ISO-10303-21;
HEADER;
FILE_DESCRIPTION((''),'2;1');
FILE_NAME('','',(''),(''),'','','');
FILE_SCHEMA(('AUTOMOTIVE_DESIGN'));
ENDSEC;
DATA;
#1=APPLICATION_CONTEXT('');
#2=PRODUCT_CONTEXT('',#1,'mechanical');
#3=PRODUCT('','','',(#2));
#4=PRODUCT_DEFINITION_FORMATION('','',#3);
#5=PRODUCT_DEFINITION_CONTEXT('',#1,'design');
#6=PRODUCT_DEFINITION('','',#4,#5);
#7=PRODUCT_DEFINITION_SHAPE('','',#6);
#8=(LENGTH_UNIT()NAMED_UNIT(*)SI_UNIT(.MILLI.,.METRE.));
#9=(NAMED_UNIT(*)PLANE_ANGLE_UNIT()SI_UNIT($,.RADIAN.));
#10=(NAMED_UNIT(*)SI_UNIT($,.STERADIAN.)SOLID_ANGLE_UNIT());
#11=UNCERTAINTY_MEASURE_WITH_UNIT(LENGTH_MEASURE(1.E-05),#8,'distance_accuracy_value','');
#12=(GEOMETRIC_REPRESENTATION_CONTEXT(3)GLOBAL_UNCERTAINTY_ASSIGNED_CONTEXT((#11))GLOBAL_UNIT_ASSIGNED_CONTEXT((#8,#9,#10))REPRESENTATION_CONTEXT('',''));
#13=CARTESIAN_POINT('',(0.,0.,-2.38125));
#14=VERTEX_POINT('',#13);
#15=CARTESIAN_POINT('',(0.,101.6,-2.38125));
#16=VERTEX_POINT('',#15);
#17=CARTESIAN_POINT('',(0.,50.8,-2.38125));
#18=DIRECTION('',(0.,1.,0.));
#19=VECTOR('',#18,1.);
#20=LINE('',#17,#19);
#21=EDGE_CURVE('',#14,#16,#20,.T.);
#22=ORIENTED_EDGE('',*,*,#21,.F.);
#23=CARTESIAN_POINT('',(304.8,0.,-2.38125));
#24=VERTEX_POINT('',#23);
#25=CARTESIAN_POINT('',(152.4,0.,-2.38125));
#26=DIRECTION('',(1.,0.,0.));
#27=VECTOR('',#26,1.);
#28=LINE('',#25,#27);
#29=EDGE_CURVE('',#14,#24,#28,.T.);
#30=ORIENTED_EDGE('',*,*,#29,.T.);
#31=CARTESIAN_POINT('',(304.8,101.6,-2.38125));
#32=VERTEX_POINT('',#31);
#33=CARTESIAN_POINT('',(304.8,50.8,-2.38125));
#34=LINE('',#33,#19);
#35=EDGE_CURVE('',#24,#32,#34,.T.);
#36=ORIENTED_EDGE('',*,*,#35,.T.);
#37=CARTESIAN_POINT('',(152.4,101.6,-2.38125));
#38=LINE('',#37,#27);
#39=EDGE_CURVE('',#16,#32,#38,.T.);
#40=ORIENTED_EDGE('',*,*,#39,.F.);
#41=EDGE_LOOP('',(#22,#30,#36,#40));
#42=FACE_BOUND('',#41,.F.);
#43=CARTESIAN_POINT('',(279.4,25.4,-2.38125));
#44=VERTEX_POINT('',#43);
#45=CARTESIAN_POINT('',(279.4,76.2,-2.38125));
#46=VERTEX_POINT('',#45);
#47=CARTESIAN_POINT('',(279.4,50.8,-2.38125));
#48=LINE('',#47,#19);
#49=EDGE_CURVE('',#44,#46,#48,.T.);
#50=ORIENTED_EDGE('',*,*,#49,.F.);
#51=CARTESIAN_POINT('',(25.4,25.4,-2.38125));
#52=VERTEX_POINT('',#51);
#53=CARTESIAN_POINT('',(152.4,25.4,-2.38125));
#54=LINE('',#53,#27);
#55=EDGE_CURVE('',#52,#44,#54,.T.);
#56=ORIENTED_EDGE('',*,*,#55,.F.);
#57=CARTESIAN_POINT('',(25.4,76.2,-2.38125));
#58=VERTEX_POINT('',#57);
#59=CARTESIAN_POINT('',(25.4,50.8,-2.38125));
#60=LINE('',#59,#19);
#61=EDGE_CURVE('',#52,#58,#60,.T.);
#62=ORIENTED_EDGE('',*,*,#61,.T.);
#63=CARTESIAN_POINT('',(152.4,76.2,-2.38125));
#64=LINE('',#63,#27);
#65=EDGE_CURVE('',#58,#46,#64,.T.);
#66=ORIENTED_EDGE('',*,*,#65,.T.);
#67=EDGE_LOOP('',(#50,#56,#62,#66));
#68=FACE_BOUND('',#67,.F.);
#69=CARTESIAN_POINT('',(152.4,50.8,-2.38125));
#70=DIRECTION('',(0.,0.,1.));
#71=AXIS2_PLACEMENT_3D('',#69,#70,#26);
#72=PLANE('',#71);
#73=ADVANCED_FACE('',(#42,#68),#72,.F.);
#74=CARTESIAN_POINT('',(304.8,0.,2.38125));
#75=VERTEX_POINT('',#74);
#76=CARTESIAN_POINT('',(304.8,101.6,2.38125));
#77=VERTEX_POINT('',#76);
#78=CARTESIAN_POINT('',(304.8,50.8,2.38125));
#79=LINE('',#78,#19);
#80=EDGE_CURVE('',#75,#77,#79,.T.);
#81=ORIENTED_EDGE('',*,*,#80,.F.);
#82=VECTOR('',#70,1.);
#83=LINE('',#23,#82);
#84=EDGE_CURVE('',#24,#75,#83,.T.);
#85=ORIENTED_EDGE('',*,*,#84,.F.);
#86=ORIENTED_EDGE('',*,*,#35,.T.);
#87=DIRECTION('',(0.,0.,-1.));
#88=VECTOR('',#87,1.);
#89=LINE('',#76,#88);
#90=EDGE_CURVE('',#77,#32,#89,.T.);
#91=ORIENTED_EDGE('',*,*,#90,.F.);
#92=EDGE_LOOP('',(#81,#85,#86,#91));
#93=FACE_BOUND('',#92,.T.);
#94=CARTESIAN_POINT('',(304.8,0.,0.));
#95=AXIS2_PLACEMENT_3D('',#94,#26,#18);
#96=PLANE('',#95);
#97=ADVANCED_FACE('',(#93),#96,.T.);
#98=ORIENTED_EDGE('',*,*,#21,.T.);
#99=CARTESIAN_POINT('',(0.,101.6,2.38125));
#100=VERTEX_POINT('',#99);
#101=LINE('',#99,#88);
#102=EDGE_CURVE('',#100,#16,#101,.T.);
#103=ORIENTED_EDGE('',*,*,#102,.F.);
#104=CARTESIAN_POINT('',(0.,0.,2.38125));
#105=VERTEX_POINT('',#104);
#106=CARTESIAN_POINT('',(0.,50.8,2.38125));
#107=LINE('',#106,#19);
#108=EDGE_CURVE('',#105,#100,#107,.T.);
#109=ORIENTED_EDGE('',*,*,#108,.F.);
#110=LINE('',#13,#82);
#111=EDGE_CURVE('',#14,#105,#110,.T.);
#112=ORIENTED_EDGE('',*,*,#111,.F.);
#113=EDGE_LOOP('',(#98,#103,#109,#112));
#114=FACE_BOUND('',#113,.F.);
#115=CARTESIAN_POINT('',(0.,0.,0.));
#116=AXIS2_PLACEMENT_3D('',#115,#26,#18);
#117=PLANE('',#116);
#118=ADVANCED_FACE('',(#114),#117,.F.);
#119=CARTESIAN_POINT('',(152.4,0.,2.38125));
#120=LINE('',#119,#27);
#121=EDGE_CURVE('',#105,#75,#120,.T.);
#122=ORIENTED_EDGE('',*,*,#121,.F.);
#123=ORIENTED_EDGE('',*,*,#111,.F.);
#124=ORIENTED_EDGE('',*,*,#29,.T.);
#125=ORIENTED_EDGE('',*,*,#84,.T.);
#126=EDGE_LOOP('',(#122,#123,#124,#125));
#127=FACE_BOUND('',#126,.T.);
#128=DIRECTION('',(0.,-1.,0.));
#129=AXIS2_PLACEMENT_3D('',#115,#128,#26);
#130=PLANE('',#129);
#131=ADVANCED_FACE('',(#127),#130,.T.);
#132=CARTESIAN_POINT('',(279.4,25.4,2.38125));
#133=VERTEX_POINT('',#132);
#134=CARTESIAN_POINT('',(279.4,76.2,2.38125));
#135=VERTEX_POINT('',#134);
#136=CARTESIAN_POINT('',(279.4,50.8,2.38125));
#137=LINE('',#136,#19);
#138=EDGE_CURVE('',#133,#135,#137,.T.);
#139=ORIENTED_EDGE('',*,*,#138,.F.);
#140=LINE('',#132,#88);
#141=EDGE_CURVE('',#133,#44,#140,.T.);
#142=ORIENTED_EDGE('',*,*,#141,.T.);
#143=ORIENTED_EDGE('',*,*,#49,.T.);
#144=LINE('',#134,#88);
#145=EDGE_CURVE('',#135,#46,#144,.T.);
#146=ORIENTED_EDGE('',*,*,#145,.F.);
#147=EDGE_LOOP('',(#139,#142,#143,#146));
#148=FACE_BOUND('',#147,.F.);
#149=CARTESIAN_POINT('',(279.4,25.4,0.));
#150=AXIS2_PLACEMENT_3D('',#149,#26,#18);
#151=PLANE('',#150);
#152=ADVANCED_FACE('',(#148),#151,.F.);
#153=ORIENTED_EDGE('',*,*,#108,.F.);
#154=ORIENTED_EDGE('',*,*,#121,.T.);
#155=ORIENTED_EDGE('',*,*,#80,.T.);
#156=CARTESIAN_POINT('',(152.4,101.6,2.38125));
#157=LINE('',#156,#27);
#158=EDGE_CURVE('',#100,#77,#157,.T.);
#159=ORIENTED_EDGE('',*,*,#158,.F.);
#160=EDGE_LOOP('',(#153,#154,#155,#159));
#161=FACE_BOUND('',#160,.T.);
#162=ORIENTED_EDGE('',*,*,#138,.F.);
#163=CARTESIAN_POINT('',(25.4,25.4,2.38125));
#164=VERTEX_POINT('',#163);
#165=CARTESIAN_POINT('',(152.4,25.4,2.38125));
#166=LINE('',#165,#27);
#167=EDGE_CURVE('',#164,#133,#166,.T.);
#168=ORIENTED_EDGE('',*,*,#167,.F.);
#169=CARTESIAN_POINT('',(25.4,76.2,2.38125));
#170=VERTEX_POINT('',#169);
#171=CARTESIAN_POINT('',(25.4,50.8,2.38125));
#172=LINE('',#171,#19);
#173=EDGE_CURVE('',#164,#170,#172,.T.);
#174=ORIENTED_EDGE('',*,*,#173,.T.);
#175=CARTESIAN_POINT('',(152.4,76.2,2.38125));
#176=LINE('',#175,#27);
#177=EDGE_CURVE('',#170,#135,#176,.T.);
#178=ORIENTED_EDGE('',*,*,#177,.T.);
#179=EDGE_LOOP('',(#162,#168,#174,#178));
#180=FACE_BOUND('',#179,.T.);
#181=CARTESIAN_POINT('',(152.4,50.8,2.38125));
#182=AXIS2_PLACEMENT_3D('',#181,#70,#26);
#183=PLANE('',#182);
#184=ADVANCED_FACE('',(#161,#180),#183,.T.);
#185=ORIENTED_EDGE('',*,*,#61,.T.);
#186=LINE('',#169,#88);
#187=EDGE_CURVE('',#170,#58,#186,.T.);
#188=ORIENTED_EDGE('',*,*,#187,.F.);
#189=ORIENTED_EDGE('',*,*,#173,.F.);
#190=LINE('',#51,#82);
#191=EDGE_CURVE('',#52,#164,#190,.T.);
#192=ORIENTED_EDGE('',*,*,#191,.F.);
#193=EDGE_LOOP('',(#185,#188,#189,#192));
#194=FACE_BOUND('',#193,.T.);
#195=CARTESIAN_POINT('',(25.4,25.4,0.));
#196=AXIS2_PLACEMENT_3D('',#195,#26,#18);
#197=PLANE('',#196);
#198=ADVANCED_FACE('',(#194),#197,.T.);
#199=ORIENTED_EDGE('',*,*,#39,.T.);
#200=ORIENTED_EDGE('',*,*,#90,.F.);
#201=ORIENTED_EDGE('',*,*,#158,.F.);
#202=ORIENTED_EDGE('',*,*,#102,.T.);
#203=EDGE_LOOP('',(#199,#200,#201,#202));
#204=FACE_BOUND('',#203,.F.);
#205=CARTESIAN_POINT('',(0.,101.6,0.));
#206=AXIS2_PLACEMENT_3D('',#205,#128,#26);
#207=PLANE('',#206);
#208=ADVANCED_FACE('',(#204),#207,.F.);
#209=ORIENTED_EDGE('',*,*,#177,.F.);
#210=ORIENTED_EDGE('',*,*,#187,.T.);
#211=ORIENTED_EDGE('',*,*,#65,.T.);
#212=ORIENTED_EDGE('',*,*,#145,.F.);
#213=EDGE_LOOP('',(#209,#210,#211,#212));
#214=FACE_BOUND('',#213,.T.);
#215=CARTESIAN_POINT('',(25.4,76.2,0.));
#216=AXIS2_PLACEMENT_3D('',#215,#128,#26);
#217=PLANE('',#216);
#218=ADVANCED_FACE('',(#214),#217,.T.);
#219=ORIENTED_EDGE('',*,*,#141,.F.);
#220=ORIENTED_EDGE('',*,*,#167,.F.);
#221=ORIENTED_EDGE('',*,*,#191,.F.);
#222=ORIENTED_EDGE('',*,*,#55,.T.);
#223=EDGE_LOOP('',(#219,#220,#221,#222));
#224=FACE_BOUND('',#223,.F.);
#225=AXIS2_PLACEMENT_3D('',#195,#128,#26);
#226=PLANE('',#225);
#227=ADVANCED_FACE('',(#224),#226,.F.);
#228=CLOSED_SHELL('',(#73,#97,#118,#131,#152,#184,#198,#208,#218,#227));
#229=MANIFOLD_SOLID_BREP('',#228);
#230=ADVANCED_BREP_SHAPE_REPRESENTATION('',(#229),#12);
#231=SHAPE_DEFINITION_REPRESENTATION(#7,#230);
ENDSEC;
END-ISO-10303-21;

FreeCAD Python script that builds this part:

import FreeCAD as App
import Part
import Sketcher

V = App.Vector
Q = App.Units.Quantity

doc = App.newDocument("Part")
params = doc.addObject("Spreadsheet::Sheet", "Params")
for row, (alias, value) in enumerate([
    ("sketch1_width", "12 in"),
    ("sketch1_width2", "10 in"),
    ("sketch1_height", "4 in"),
    ("sketch1_height2", "2 in"),
    ("pad1_length", "0.1875 in"),
], start=1):
    params.set(f"A{row}", alias)
    params.set(f"B{row}", "=" + value)
    params.setAlias(f"B{row}", alias)

body = doc.addObject("PartDesign::Body", "Body")

sketch1 = doc.addObject("Sketcher::SketchObject", "Sketch")
body.addObject(sketch1)
sketch1.AttachmentSupport = (doc.XY_Plane, [""])
sketch1.MapMode = "FlatFace"
sketch1.addGeometry(Part.LineSegment(V(0, 102, 0), V(0, 0, 0)), False)
sketch1.addGeometry(Part.LineSegment(V(0, 0, 0), V(305, 0, 0)), False)
sketch1.addGeometry(Part.LineSegment(V(305, 0, 0), V(305, 102, 0)), False)
sketch1.addGeometry(Part.LineSegment(V(305, 102, 0), V(0, 102, 0)), False)
sketch1.addGeometry(Part.LineSegment(V(279, 25, 0), V(25, 25, 0)), False)
sketch1.addGeometry(Part.LineSegment(V(25, 25, 0), V(25, 76, 0)), False)
sketch1.addGeometry(Part.LineSegment(V(25, 76, 0), V(279, 76, 0)), False)
sketch1.addGeometry(Part.LineSegment(V(279, 76, 0), V(279, 25, 0)), False)
sketch1.addConstraint(Sketcher.Constraint("Coincident", 0, 2, 1, 1))
sketch1.addConstraint(Sketcher.Constraint("Coincident", 1, 2, 2, 1))
sketch1.addConstraint(Sketcher.Constraint("Coincident", 2, 2, 3, 1))
sketch1.addConstraint(Sketcher.Constraint("Coincident", 3, 2, 0, 1))
sketch1.addConstraint(Sketcher.Constraint("Coincident", 4, 2, 5, 1))
sketch1.addConstraint(Sketcher.Constraint("Coincident", 5, 2, 6, 1))
sketch1.addConstraint(Sketcher.Constraint("Coincident", 6, 2, 7, 1))
sketch1.addConstraint(Sketcher.Constraint("Coincident", 7, 2, 4, 1))
sketch1.addConstraint(Sketcher.Constraint("Vertical", 0))
sketch1.addConstraint(Sketcher.Constraint("Horizontal", 1))
sketch1.addConstraint(Sketcher.Constraint("Vertical", 2))
sketch1.addConstraint(Sketcher.Constraint("Horizontal", 3))
sketch1.addConstraint(Sketcher.Constraint("Horizontal", 4))
sketch1.addConstraint(Sketcher.Constraint("Vertical", 5))
sketch1.addConstraint(Sketcher.Constraint("Horizontal", 6))
sketch1.addConstraint(Sketcher.Constraint("Vertical", 7))
sketch1.addConstraint(Sketcher.Constraint("Coincident", 0, 2, -1, 1))
sketch1.addConstraint(Sketcher.Constraint("DistanceX", 1, 1, 1, 2, Q("12 in")))
sketch1.addConstraint(Sketcher.Constraint("DistanceX", 4, 2, 4, 1, Q("10 in")))
sketch1.addConstraint(Sketcher.Constraint("DistanceY", 0, 2, 0, 1, Q("4 in")))
sketch1.addConstraint(Sketcher.Constraint("DistanceY", 5, 1, 5, 2, Q("2 in")))
sketch1.addConstraint(Sketcher.Constraint("DistanceX", -1, 1, 4, 2, Q("1 in")))
sketch1.addConstraint(Sketcher.Constraint("DistanceY", -1, 1, 4, 2, Q("1 in")))
sketch1.setExpression("Constraints[17]", "Params.sketch1_width")
sketch1.setExpression("Constraints[18]", "Params.sketch1_width2")
sketch1.setExpression("Constraints[19]", "Params.sketch1_height")
sketch1.setExpression("Constraints[20]", "Params.sketch1_height2")
pad1 = doc.addObject("PartDesign::Pad", "Pad")
body.addObject(pad1)
pad1.Profile = sketch1
pad1.setExpression("Length", "Params.pad1_length")
pad1.Midplane = True

doc.recompute()
